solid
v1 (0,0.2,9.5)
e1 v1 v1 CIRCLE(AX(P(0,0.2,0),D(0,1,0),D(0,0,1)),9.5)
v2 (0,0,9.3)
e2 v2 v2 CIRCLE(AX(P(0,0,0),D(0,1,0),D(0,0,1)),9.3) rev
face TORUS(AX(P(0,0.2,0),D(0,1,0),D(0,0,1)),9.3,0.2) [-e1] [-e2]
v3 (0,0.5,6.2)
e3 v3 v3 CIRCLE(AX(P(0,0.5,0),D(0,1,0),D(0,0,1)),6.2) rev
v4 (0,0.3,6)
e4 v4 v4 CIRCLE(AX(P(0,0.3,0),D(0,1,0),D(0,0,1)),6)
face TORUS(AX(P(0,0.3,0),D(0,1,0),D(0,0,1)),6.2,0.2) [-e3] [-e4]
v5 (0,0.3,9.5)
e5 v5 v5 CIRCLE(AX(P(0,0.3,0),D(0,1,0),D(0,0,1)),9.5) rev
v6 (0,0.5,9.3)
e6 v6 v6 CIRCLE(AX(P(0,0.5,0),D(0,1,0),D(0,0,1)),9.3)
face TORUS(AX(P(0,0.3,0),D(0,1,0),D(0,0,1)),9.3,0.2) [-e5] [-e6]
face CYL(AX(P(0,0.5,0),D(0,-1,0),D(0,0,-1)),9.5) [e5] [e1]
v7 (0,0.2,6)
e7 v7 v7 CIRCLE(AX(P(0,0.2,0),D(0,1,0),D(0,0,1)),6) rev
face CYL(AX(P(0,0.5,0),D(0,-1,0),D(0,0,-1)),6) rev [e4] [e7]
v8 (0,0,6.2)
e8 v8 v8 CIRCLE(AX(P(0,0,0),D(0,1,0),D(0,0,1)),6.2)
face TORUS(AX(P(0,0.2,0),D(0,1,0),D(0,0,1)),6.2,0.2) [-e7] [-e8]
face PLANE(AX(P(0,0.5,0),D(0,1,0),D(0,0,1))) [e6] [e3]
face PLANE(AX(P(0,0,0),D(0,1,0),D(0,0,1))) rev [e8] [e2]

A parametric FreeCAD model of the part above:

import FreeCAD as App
import Part
import Sketcher

V = App.Vector


def edges_at(feature, points):
    """Names of the edges that pass closest to the given points."""
    edges = feature.Shape.Edges
    near = lambda p: min(range(len(edges)), key=lambda i: edges[i].distToShape(Part.Vertex(*p))[0])
    return sorted({f"Edge{near(p) + 1}" for p in points})

doc = App.newDocument("Part")
body = doc.addObject("PartDesign::Body", "Body")

# Sketch on XZ plane
sketch1 = doc.addObject("Sketcher::SketchObject", "Sketch")
body.addObject(sketch1)
sketch1.AttachmentSupport = (doc.XZ_Plane, [""])
sketch1.MapMode = "FlatFace"
sketch1.addGeometry([
    Part.Circle(V(0, 0, 0), V(0, 0, 1), 10),
    Part.Circle(V(0, 0, 0), V(0, 0, 1), 6),
], False)
sketch1.addConstraint([
    Sketcher.Constraint("Coincident", 0, 3, -1, 1),
    Sketcher.Constraint("Coincident", 1, 3, -1, 1),
    Sketcher.Constraint("Diameter", 0, 19.0),
    Sketcher.Constraint("Diameter", 1, 12.0),
])
pad1 = doc.addObject("PartDesign::Pad", "Pad")
body.addObject(pad1)
pad1.Profile = sketch1
pad1.Length = 0.5
pad1.Reversed = True
doc.recompute()

fillet = doc.addObject("PartDesign::Fillet", "Fillet")
body.addObject(fillet)
fillet.Base = (pad1, edges_at(pad1, [
    (-9.5, 0, 0),
    (-9.5, 0.5, 0),
    (-6, 0, 0),
    (-6, 0.5, 0),
]))
fillet.Radius = 0.2

doc.recompute()
